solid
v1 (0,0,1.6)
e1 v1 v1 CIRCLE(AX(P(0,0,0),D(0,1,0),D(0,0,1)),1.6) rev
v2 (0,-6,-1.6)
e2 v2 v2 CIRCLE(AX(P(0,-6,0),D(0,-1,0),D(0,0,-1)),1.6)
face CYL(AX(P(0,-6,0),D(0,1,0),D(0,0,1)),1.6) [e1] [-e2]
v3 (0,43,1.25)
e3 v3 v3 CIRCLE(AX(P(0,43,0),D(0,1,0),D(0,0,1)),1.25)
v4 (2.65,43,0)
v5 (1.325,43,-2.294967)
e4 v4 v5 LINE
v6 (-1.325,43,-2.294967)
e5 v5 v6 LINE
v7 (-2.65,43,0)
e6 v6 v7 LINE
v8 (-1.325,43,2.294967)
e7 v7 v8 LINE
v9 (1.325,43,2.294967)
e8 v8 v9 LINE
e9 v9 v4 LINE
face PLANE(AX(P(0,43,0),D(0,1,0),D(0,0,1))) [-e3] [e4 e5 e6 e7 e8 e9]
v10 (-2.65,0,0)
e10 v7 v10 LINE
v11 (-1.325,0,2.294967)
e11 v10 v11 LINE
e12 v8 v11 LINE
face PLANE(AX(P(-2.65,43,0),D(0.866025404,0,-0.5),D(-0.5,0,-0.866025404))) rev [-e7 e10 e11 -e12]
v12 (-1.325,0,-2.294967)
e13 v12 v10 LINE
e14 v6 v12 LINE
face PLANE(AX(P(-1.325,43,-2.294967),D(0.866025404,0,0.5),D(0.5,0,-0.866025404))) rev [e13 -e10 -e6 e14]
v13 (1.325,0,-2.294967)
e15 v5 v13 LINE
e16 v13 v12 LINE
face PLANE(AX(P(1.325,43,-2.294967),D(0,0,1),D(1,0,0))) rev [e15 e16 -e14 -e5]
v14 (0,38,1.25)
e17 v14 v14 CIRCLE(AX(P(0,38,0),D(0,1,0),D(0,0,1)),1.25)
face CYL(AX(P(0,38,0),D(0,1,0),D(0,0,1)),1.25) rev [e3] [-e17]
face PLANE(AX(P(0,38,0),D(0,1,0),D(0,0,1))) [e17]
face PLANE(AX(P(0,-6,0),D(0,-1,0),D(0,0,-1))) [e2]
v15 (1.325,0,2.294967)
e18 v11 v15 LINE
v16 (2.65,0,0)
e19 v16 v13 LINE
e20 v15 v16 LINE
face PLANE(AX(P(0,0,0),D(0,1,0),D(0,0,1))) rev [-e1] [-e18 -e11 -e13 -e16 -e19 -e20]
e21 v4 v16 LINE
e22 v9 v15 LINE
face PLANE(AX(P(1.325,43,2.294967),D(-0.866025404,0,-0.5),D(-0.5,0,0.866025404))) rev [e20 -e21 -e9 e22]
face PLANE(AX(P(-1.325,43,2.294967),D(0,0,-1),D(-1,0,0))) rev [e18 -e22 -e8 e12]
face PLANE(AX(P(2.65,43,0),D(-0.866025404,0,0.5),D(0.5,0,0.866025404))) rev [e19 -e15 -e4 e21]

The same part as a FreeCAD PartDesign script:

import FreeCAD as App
import Part
import Sketcher
from FreeCAD import Vector
Q = App.Units.Quantity


def add_polygon(sketch, points):
    """Adds a closed chain of lines whose ends are joined by coincident constraints."""
    first, n = sketch.GeometryCount, len(points)
    for a, b in zip(points, points[1:] + points[:1]):
        sketch.addGeometry(Part.LineSegment(App.Vector(*a, 0), App.Vector(*b, 0)), False)
    for i in range(n):
        sketch.addConstraint(Sketcher.Constraint("Coincident", first + i, 2, first + (i + 1) % n, 1))

doc = App.newDocument("Part")
params = doc.addObject("Spreadsheet::Sheet", "Params")
for row, (alias, value) in enumerate([
    ("sketch1_width", "2.65 mm"),
    ("pad1_length", "43 mm"),
    ("sketch2_diameter", "3.2 mm"),
    ("pad2_length", "6 mm"),
    ("sketch3_diameter", "2.5 mm"),
    ("pocket1_length", "5 mm"),
], start=1):
    params.set(f"A{row}", alias)
    params.set(f"B{row}", "=" + value)
    params.setAlias(f"B{row}", alias)

body = doc.addObject("PartDesign::Body", "Body")

sketch1 = body.newObject("Sketcher::SketchObject", "Sketch")
sketch1.AttachmentSupport = (doc.getObject("XZ_Plane"), [""])
sketch1.MapMode = "FlatFace"
add_polygon(sketch1, [(1.3, 2.3), (2.6, 0), (1.3, -2.3), (-1.3, -2.3), (-2.6, 0), (-1.3, 2.3)])
sketch1.addConstraint([
    Sketcher.Constraint("Horizontal", 2),
    Sketcher.Constraint("Horizontal", 5),
    Sketcher.Constraint("Symmetric", 0, 2, 3, 2, -1, 1),
    Sketcher.Constraint("Symmetric", 1, 2, 4, 2, -1, 1),
    Sketcher.Constraint("PointOnObject", 0, 2, -1),
    Sketcher.Constraint("Parallel", 0, 3),
    Sketcher.Constraint("Vertical", 2, 2, 4, 2),
    Sketcher.Constraint("Angle", 0, Q("-60 deg")),
    Sketcher.Constraint("DistanceX", 2, 2, 2, 1, 2.65),
    Sketcher.Constraint("DistanceX", 3, 2, 0, 2, 5.3),
])
sketch1.setExpression("Constraints[14]", "Params.sketch1_width")
pad1 = body.newObject("PartDesign::Pad", "Pad")
pad1.Profile = sketch1
pad1.setExpression("Length", "Params.pad1_length")
pad1.Reversed = True

sketch2 = body.newObject("Sketcher::SketchObject", "Sketch001")
sketch2.AttachmentSupport = (doc.getObject("XZ_Plane"), [""])
sketch2.MapMode = "FlatFace"
sketch2.addGeometry(Part.Circle(Vector(0, 0, 0), Vector(0, 0, 1), 1.6), False)
sketch2.addConstraint([
    Sketcher.Constraint("Coincident", 0, 3, -1, 1),
    Sketcher.Constraint("Diameter", 0, 3.2),
])
sketch2.setExpression("Constraints[1]", "Params.sketch2_diameter")
pad2 = body.newObject("PartDesign::Pad", "Pad001")
pad2.Profile = sketch2
pad2.setExpression("Length", "Params.pad2_length")

sketch3 = body.newObject("Sketcher::SketchObject", "Sketch002")
sketch3.AttachmentSupport = (doc.getObject("XZ_Plane"), [""])
sketch3.MapMode = "FlatFace"
sketch3.AttachmentOffset = App.Placement(Vector(0, 0, -43), App.Rotation())
sketch3.addGeometry(Part.Circle(Vector(0, 0, 0), Vector(0, 0, 1), 1.2), False)
sketch3.addConstraint([
    Sketcher.Constraint("Coincident", 0, 3, -1, 1),
    Sketcher.Constraint("Diameter", 0, 2.5),
])
sketch3.setExpression("Constraints[1]", "Params.sketch3_diameter")
pocket1 = body.newObject("PartDesign::Pocket", "Pocket")
pocket1.Profile = sketch3
pocket1.setExpression("Length", "Params.pocket1_length")
pocket1.Reversed = True

doc.recompute()
